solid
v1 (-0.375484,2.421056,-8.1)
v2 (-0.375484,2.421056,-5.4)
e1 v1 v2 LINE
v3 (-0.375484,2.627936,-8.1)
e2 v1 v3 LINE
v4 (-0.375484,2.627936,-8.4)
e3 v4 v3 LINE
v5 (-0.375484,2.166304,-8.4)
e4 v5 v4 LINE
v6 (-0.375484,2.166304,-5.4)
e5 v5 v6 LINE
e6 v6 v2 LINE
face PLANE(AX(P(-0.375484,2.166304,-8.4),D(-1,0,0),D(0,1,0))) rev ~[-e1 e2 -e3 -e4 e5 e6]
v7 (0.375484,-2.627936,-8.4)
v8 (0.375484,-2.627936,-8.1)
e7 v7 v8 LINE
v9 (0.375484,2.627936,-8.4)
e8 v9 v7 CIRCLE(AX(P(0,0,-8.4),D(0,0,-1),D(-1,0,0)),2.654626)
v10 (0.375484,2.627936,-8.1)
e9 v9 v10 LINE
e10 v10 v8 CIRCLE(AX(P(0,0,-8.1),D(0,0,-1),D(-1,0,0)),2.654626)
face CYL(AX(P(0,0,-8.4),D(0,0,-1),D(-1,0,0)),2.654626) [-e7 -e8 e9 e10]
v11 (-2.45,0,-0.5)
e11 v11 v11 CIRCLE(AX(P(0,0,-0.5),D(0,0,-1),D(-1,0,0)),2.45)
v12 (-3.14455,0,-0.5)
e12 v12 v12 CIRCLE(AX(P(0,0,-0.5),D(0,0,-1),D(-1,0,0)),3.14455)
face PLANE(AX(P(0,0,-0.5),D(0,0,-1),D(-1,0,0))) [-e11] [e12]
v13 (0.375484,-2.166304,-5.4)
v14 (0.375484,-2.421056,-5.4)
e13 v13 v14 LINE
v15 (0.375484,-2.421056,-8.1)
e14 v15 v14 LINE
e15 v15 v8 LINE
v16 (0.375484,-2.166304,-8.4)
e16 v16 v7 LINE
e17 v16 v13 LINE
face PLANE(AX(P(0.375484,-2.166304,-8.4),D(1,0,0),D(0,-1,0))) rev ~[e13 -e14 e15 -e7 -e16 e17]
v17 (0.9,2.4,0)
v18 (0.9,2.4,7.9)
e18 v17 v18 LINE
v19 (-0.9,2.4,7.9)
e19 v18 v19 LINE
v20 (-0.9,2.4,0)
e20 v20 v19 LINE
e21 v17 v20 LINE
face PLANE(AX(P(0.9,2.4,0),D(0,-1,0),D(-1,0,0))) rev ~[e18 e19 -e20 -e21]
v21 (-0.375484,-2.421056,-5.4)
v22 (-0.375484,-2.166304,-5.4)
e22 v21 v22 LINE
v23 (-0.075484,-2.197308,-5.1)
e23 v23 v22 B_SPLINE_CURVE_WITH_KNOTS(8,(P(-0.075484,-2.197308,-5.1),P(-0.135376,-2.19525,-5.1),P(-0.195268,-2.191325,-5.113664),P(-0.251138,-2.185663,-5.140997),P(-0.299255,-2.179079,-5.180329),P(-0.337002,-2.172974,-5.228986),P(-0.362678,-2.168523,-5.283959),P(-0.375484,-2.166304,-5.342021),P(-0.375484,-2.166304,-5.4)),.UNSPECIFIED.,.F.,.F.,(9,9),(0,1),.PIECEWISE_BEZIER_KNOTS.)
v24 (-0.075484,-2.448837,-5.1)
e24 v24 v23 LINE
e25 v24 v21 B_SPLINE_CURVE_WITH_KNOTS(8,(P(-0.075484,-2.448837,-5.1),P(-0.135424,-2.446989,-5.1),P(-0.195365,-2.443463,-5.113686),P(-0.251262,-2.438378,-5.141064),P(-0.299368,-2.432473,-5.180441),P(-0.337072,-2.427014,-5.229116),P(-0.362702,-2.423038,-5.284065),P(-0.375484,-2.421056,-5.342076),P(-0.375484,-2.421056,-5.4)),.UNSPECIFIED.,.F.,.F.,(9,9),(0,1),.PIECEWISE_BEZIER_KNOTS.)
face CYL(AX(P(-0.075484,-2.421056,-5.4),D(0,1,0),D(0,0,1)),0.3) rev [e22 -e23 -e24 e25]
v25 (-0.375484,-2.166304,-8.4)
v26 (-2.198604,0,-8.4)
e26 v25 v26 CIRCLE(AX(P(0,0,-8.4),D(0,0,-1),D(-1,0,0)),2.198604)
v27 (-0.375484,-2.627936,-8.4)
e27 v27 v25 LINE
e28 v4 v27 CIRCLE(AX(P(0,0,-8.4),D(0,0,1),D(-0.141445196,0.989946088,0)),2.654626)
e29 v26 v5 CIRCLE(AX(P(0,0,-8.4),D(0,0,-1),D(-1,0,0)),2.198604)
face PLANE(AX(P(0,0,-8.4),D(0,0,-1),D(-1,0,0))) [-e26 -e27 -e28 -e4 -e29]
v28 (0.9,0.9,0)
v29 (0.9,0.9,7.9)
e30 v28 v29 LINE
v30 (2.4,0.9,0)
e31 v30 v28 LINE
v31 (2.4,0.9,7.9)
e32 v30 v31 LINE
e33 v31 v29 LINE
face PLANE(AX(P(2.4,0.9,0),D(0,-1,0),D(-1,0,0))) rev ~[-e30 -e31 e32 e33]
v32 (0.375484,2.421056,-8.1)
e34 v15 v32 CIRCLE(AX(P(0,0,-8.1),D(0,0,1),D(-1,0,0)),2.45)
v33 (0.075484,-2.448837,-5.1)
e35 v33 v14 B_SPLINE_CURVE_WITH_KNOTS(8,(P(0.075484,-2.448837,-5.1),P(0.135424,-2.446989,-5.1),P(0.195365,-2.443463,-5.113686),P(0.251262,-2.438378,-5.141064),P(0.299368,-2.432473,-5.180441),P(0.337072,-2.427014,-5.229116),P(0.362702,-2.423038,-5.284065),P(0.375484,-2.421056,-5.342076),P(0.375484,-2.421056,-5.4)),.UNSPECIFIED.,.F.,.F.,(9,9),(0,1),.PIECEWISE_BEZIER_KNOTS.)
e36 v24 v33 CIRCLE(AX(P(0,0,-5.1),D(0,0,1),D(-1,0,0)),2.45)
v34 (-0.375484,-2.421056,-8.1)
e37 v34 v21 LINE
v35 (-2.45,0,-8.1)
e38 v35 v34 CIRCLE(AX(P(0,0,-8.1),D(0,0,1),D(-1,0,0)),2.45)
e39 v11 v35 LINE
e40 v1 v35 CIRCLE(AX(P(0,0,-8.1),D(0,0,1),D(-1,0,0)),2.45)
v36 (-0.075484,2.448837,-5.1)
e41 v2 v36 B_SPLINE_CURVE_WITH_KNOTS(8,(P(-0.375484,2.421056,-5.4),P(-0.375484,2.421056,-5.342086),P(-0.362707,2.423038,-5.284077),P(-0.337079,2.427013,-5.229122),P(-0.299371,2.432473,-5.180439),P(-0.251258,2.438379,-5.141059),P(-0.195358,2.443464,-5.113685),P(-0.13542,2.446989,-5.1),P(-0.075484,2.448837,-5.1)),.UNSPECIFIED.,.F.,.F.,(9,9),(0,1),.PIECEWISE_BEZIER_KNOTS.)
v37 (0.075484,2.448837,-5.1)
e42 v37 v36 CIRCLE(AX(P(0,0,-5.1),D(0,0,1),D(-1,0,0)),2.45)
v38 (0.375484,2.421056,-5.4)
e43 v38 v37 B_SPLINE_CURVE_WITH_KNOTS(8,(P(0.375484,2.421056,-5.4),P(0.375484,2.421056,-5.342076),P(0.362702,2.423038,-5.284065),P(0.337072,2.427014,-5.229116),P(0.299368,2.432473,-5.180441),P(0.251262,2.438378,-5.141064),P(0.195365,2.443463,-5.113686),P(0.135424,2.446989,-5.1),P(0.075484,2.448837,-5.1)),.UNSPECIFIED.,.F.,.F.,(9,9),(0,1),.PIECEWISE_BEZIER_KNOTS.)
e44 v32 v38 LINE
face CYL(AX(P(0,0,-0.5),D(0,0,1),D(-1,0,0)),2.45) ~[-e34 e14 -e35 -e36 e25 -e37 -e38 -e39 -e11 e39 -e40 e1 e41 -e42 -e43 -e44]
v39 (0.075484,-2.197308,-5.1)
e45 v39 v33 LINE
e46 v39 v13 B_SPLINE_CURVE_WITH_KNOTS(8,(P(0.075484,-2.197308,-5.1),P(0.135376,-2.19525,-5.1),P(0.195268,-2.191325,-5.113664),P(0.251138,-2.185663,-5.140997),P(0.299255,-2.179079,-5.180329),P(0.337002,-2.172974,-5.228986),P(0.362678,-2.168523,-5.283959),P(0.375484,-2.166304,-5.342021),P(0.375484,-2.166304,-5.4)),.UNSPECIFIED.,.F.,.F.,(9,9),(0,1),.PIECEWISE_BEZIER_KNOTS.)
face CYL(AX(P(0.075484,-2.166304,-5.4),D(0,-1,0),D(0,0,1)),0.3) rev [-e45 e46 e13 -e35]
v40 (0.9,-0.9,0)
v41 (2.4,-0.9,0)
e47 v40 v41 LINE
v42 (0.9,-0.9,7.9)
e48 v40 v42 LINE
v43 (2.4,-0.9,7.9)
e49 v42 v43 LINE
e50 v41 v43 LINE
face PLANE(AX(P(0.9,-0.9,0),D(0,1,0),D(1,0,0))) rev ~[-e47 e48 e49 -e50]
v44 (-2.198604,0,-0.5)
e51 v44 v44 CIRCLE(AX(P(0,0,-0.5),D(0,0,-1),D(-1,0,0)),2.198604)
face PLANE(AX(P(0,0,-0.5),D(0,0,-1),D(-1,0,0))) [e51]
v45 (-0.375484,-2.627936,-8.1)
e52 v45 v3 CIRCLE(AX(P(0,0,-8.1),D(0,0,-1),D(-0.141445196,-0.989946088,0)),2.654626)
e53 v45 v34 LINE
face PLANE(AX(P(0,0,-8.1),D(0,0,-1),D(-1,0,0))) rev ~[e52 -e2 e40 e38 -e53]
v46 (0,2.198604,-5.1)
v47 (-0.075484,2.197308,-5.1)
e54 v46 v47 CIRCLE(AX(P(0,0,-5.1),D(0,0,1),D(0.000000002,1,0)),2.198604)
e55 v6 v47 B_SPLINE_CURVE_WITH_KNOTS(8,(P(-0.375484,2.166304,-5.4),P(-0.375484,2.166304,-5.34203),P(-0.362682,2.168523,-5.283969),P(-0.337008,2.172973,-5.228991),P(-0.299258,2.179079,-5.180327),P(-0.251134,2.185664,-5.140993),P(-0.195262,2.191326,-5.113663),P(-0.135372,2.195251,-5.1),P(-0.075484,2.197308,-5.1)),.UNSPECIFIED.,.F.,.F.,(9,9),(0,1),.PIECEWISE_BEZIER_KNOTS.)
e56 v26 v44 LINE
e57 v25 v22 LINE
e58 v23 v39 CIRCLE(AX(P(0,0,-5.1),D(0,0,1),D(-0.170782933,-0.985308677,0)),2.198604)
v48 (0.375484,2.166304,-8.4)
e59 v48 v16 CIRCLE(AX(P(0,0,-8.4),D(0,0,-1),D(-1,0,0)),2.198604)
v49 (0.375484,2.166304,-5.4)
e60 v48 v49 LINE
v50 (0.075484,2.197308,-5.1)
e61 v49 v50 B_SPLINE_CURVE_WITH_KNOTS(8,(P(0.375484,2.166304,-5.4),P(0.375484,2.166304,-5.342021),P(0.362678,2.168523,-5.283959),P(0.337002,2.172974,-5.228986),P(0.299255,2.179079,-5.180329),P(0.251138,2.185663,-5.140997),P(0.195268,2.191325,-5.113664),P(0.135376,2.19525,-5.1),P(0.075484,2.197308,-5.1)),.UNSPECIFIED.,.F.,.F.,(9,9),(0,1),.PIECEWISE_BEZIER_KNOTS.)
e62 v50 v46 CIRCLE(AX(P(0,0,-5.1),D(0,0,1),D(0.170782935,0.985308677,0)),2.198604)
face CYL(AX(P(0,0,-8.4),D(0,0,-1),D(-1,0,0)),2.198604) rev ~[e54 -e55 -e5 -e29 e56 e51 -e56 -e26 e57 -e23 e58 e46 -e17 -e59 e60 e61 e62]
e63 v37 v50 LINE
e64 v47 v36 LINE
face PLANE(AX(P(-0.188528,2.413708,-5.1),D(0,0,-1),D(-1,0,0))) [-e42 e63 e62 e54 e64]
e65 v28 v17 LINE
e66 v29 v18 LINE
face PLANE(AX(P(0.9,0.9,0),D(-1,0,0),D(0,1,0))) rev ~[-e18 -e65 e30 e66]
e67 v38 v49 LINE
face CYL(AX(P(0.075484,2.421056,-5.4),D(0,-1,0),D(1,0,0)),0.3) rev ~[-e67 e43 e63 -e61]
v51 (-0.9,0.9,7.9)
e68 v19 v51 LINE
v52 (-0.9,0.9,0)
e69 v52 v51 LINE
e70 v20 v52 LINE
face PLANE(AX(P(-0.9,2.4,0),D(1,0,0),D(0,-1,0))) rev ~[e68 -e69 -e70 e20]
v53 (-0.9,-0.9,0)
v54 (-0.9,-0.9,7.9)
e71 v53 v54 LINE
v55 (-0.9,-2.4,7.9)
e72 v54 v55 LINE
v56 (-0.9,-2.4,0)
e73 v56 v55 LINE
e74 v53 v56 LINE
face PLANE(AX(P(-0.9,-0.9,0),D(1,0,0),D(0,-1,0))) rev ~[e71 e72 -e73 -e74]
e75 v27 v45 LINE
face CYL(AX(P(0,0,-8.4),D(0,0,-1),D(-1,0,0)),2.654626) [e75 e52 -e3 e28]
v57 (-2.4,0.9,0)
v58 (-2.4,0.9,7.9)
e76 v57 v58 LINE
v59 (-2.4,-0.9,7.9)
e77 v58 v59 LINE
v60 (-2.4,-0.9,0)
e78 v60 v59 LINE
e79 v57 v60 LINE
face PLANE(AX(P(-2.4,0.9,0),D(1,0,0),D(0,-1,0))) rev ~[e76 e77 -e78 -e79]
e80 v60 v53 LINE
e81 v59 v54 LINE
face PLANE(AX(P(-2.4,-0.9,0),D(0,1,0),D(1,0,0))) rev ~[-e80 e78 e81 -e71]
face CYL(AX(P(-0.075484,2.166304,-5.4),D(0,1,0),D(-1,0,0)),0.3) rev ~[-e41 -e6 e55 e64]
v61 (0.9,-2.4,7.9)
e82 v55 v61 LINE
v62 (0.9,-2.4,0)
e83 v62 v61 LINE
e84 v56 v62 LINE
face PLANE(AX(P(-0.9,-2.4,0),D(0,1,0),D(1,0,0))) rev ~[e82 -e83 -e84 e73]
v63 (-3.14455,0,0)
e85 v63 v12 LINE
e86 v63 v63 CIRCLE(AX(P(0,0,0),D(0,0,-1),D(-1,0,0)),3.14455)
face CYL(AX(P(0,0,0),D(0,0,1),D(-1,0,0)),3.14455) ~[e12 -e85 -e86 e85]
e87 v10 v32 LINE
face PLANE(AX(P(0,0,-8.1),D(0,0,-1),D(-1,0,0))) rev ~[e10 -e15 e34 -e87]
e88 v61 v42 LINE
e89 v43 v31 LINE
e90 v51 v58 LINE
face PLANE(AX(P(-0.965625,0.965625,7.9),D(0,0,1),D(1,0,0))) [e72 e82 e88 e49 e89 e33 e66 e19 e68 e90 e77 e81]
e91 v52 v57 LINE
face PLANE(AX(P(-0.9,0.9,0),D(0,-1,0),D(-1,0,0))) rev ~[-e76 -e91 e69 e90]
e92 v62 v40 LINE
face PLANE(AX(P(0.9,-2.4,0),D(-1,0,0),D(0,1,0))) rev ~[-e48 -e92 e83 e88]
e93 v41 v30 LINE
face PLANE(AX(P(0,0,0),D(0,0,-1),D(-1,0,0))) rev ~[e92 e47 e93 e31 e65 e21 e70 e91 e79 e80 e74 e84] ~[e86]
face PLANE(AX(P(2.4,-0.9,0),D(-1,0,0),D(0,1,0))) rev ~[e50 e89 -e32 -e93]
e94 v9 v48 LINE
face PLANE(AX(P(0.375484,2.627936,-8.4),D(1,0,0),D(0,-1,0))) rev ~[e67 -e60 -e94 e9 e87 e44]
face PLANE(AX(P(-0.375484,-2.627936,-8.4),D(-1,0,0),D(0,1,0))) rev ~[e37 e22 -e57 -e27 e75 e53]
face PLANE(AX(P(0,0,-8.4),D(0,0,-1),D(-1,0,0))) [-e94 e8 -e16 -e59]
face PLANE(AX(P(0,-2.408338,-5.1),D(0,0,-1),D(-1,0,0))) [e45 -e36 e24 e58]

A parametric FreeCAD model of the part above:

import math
import FreeCAD as App
import Part
import Sketcher
from FreeCAD import Vector
Q = App.Units.Quantity


def edges_at(feature, points):
    """Names of the edges that pass closest to the given points."""
    edges = feature.Shape.Edges
    near = lambda p: min(range(len(edges)), key=lambda i: edges[i].distToShape(Part.Vertex(*p))[0])
    return sorted({f"Edge{near(p) + 1}" for p in points})


def add_polygon(sketch, points):
    """Adds a closed chain of lines whose ends are joined by coincident constraints."""
    first, n = sketch.GeometryCount, len(points)
    for a, b in zip(points, points[1:] + points[:1]):
        sketch.addGeometry(Part.LineSegment(App.Vector(*a, 0), App.Vector(*b, 0)), False)
    for i in range(n):
        sketch.addConstraint(Sketcher.Constraint("Coincident", first + i, 2, first + (i + 1) % n, 1))

doc = App.newDocument("Part")
body = doc.addObject("PartDesign::Body", "Body")

# Sketch on XY plane
sketch1 = body.newObject("Sketcher::SketchObject", "Sketch")
sketch1.AttachmentSupport = (doc.getObject("XY_Plane"), [""])
sketch1.MapMode = "FlatFace"
add_polygon(sketch1, [(-2.4, 0.9), (-2.4, -0.9), (-0.9, -0.9), (-0.9, -2.4), (0.9, -2.4), (0.9, -0.9), (2.4, -0.9), (2.4, 0.9), (0.9, 0.9), (0.9, 2.4), (-0.9, 2.4), (-0.9, 0.9)])  # lines 0-11
sketch1.addConstraint([
    Sketcher.Constraint("Vertical", 0),
    Sketcher.Constraint("Horizontal", 1),
    Sketcher.Constraint("Vertical", 2),
    Sketcher.Constraint("Horizontal", 3),
    Sketcher.Constraint("Vertical", 4),
    Sketcher.Constraint("Horizontal", 5),
    Sketcher.Constraint("Vertical", 6),
    Sketcher.Constraint("Horizontal", 7),
    Sketcher.Constraint("Vertical", 8),
    Sketcher.Constraint("Horizontal", 9),
    Sketcher.Constraint("Vertical", 10),
    Sketcher.Constraint("Horizontal", 11),
    Sketcher.Constraint("Symmetric", 0, 2, 6, 2, -1, 1),
    Sketcher.Constraint("Symmetric", 2, 2, 8, 2, -1, 1),
    Sketcher.Constraint("Symmetric", 4, 2, 10, 2, -1, 1),
    Sketcher.Constraint("Symmetric", 1, 2, 4, 2, -2),
    Sketcher.Constraint("Equal", 9, 0),
    Sketcher.Constraint("Equal", 11, 2),
    Sketcher.Constraint("DistanceX", 1, 1, 1, 2, Q("1.5 mm")),
    Sketcher.Constraint("DistanceX", 3, 1, 3, 2, Q("1.8 mm")),
])
pad1 = body.newObject("PartDesign::Pad", "Pad")
pad1.Profile = sketch1
pad1.Length = 7.9

# Sketch on XY plane
sketch2 = body.newObject("Sketcher::SketchObject", "Sketch001")
sketch2.AttachmentSupport = (doc.getObject("XY_Plane"), [""])
sketch2.MapMode = "FlatFace"
sketch2.addGeometry(Part.Circle(Vector(0, 0, 0), Vector(0, 0, 1), 3.1), False)
sketch2.addConstraint([
    Sketcher.Constraint("Coincident", 0, 3, -1, 1),
    Sketcher.Constraint("Diameter", 0, Q("6.2891 mm")),
])
pad2 = body.newObject("PartDesign::Pad", "Pad001")
pad2.Profile = sketch2
pad2.Length = 0.5
pad2.Reversed = True

# Sketch on XY plane
sketch3 = body.newObject("Sketcher::SketchObject", "Sketch002")
sketch3.AttachmentSupport = (doc.getObject("XY_Plane"), [""])
sketch3.MapMode = "FlatFace"
sketch3.AttachmentOffset = App.Placement(Vector(0, 0, -0.5), App.Rotation())
sketch3.addGeometry(Part.Circle(Vector(0, 0, 0), Vector(0, 0, 1), 2.5), False)
sketch3.addConstraint([
    Sketcher.Constraint("Coincident", 0, 3, -1, 1),
    Sketcher.Constraint("Diameter", 0, Q("4.9 mm")),
])
pad3 = body.newObject("PartDesign::Pad", "Pad002")
pad3.Profile = sketch3
pad3.Length = 7.9
pad3.Reversed = True

# Sketch on XY plane
sketch4 = body.newObject("Sketcher::SketchObject", "Sketch003")
sketch4.AttachmentSupport = (doc.getObject("XY_Plane"), [""])
sketch4.MapMode = "FlatFace"
sketch4.AttachmentOffset = App.Placement(Vector(0, 0, -8.4), App.Rotation())
sketch4.addGeometry(Part.Circle(Vector(0, 0, 0), Vector(0, 0, 1), 2.7), False)
sketch4.addConstraint([
    Sketcher.Constraint("Coincident", 0, 3, -1, 1),
    Sketcher.Constraint("Diameter", 0, Q("5.309251 mm")),
])
pad4 = body.newObject("PartDesign::Pad", "Pad003")
pad4.Profile = sketch4
pad4.Length = 0.3

# Sketch on XY plane
sketch5 = body.newObject("Sketcher::SketchObject", "Sketch004")
sketch5.AttachmentSupport = (doc.getObject("XY_Plane"), [""])
sketch5.MapMode = "FlatFace"
sketch5.AttachmentOffset = App.Placement(Vector(0, 0, -8.4), App.Rotation())
sketch5.addGeometry(Part.Circle(Vector(0, 0, 0), Vector(0, 0, 1), 2.2), False)
sketch5.addConstraint([
    Sketcher.Constraint("Coincident", 0, 3, -1, 1),
    Sketcher.Constraint("Diameter", 0, Q("4.397208 mm")),
])
pocket1 = body.newObject("PartDesign::Pocket", "Pocket")
pocket1.Profile = sketch5
pocket1.Length = 7.9
pocket1.Reversed = True

# Sketch on XY plane
sketch6 = body.newObject("Sketcher::SketchObject", "Sketch005")
sketch6.AttachmentSupport = (doc.getObject("XY_Plane"), [""])
sketch6.MapMode = "FlatFace"
sketch6.AttachmentOffset = App.Placement(Vector(0, 0, -8.4), App.Rotation())
sketch6.addGeometry([
    Part.LineSegment(Vector(-0.38, 2.17, 0), Vector(-0.38, 2.63, 0)),  # 0
    Part.ArcOfCircle(Part.Circle(Vector(0, 0, 0), Vector(0, 0, 1), 2.65), math.radians(90), math.radians(98.13)),  # 1
    Part.ArcOfCircle(Part.Circle(Vector(0, 0, 0), Vector(0, 0, 1), 2.65), math.radians(81.87), math.radians(90)),  # 2
    Part.LineSegment(Vector(0.38, 2.63, 0), Vector(0.38, 2.17, 0)),  # 3
    Part.ArcOfCircle(Part.Circle(Vector(0, 0, 0), Vector(0, 0, 1), 2.2), math.radians(80.17), math.radians(90)),  # 4
    Part.ArcOfCircle(Part.Circle(Vector(0, 0, 0), Vector(0, 0, 1), 2.2), math.radians(90), math.radians(99.83)),  # 5
    Part.ArcOfCircle(Part.Circle(Vector(0, 0, 0), Vector(0, 0, 1), 2.65), math.radians(-98.13), math.radians(-90)),  # 6
    Part.LineSegment(Vector(-0.38, -2.63, 0), Vector(-0.38, -2.17, 0)),  # 7
    Part.ArcOfCircle(Part.Circle(Vector(0, 0, 0), Vector(0, 0, 1), 2.2), math.radians(-99.83), math.radians(-80.17)),  # 8
    Part.LineSegment(Vector(0.38, -2.17, 0), Vector(0.38, -2.63, 0)),  # 9
    Part.ArcOfCircle(Part.Circle(Vector(0, 0, 0), Vector(0, 0, 1), 2.65), math.radians(-90), math.radians(-81.87)),  # 10
], False)
sketch6.addConstraint([
    Sketcher.Constraint("Coincident", 0, 2, 1, 2),
    Sketcher.Constraint("Tangent", 1, 1, 2, 2),
    Sketcher.Constraint("Coincident", 2, 1, 3, 1),
    Sketcher.Constraint("Coincident", 3, 2, 4, 1),
    Sketcher.Constraint("Tangent", 4, 2, 5, 1),
    Sketcher.Constraint("Coincident", 5, 2, 0, 1),
    Sketcher.Constraint("Coincident", 6, 1, 7, 1),
    Sketcher.Constraint("Coincident", 7, 2, 8, 1),
    Sketcher.Constraint("Coincident", 8, 2, 9, 1),
    Sketcher.Constraint("Coincident", 9, 2, 10, 2),
    Sketcher.Constraint("Tangent", 10, 1, 6, 2),
    Sketcher.Constraint("Vertical", 0),
    Sketcher.Constraint("Vertical", 3),
    Sketcher.Constraint("Vertical", 7),
    Sketcher.Constraint("Vertical", 9),
    Sketcher.Constraint("Coincident", 1, 3, -1, 1),
    Sketcher.Constraint("Coincident", 4, 3, -1, 1),
    Sketcher.Constraint("Coincident", 6, 3, -1, 1),
    Sketcher.Constraint("Coincident", 8, 3, -1, 1),
    Sketcher.Constraint("Equal", 1, 2),
    Sketcher.Constraint("Equal", 4, 5),
    Sketcher.Constraint("Equal", 2, 6),
    Sketcher.Constraint("Equal", 5, 8),
    Sketcher.Constraint("Equal", 6, 10),
    Sketcher.Constraint("PointOnObject", 1, 1, -2),
    Sketcher.Constraint("PointOnObject", 4, 2, -2),
    Sketcher.Constraint("PointOnObject", 10, 1, -2),
    Sketcher.Constraint("Horizontal", 0, 2, 2, 1),
    Sketcher.Constraint("Horizontal", 7, 2, 8, 2),
    Sketcher.Constraint("Vertical", 5, 2, 6, 1),
    Sketcher.Constraint("Radius", 1, Q("2.654626 mm")),
    Sketcher.Constraint("Radius", 4, Q("2.198604 mm")),
    Sketcher.Constraint("DistanceY", 3, 2, 4, 2, Q("0.0323 mm")),
])
pocket2 = body.newObject("PartDesign::Pocket", "Pocket001")
pocket2.Profile = sketch6
pocket2.Length = 3.3
pocket2.Reversed = True
doc.recompute()

fillet = body.newObject("PartDesign::Fillet", "Fillet")
fillet.Base = (pocket2, edges_at(pocket2, [
    (0.375, 2.294, -5.1),
    (-0.375, 2.294, -5.1),
    (-0.375, -2.294, -5.1),
    (0.375, -2.294, -5.1),
]))
fillet.Radius = 0.3

doc.recompute()
